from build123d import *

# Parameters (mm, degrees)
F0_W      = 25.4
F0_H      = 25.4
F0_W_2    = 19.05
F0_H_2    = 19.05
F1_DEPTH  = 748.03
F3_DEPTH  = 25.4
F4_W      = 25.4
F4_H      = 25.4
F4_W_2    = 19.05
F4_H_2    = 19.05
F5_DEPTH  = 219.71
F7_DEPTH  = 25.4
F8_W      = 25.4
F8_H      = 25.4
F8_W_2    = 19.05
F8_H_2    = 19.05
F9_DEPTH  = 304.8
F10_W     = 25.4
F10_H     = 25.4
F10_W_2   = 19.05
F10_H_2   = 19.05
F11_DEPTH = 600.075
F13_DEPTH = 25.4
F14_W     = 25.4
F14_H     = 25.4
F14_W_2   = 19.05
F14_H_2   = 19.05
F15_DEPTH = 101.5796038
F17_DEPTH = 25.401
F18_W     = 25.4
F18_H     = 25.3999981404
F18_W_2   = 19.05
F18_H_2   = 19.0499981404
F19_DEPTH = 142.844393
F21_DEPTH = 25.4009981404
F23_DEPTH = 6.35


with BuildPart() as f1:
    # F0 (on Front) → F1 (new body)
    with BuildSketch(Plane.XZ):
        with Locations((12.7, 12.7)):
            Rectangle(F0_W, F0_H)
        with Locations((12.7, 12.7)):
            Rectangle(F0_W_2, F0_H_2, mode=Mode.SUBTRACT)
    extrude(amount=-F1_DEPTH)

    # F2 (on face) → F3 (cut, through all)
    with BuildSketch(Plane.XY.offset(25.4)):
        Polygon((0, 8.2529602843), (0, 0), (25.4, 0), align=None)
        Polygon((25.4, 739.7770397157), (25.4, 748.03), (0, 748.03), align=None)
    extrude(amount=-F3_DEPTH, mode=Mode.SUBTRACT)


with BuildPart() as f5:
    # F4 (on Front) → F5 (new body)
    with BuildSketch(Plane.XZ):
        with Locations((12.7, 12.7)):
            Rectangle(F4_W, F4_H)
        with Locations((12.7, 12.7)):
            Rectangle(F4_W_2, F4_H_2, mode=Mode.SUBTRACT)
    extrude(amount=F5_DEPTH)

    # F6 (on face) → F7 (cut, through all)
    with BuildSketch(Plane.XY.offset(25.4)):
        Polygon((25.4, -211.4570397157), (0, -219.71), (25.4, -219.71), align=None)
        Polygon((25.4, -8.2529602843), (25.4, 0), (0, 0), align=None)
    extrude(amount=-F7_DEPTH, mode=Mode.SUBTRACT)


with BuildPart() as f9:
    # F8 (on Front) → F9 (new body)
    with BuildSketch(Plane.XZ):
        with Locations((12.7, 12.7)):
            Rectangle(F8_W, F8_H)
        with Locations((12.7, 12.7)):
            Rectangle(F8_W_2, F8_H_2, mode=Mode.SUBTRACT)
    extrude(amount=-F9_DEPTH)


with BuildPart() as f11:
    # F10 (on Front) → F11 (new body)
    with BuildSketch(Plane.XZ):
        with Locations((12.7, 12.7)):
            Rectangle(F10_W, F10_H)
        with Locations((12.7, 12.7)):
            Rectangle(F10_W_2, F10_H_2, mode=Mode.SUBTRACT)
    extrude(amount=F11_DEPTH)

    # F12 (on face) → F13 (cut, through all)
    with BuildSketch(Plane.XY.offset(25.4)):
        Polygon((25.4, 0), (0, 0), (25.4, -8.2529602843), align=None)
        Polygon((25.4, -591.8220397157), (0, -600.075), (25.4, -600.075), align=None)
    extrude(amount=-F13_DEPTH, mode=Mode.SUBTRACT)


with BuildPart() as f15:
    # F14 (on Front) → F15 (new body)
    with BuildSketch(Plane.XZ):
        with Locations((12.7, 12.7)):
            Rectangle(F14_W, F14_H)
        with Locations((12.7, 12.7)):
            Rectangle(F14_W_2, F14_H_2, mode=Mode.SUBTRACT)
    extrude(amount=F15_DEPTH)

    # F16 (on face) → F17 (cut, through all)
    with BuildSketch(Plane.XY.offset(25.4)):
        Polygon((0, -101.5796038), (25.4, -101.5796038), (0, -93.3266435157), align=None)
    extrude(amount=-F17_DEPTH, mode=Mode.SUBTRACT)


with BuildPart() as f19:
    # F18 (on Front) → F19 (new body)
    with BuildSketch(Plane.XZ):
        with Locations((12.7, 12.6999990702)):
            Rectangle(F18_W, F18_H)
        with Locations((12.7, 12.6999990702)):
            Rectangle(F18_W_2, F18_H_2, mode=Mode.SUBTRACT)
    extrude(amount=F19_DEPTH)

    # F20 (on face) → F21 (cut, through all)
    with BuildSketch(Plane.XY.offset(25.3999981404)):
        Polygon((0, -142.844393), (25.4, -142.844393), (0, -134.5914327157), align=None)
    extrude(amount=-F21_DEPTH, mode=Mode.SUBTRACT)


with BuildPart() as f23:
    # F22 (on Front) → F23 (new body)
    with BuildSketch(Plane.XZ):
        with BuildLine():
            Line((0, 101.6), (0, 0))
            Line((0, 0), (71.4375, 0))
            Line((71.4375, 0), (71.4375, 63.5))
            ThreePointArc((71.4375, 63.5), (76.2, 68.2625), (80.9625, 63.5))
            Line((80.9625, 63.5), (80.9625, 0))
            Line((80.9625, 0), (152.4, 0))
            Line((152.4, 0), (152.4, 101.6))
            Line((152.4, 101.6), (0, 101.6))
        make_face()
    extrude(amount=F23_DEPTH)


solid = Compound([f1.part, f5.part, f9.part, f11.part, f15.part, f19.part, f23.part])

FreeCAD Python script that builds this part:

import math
import FreeCAD as App
import Part
import Sketcher
Q = App.Units.Quantity


def add_polygon(sketch, points):
    """Adds a closed chain of lines whose ends are joined by coincident constraints."""
    first, n = sketch.GeometryCount, len(points)
    for a, b in zip(points, points[1:] + points[:1]):
        sketch.addGeometry(Part.LineSegment(App.Vector(*a, 0), App.Vector(*b, 0)), False)
    for i in range(n):
        sketch.addConstraint(Sketcher.Constraint("Coincident", first + i, 2, first + (i + 1) % n, 1))

doc = App.newDocument("Part")
body = doc.addObject("PartDesign::Body", "Body")

# Sketch on XZ plane
sketch1 = body.newObject("Sketcher::SketchObject", "Sketch")
sketch1.AttachmentSupport = (doc.getObject("XZ_Plane"), [""])
sketch1.MapMode = "FlatFace"
add_polygon(sketch1, [(0, 25.4), (0, 0), (25.4, 0), (25.4, 25.4)])  # lines 0-3
add_polygon(sketch1, [(22.225, 3.175), (3.175, 3.175), (3.175, 22.225), (22.225, 22.225)])  # lines 4-7
sketch1.addConstraint([
    Sketcher.Constraint("Vertical", 0),
    Sketcher.Constraint("Horizontal", 1),
    Sketcher.Constraint("Vertical", 2),
    Sketcher.Constraint("Horizontal", 3),
    Sketcher.Constraint("Horizontal", 4),
    Sketcher.Constraint("Vertical", 5),
    Sketcher.Constraint("Horizontal", 6),
    Sketcher.Constraint("Vertical", 7),
    Sketcher.Constraint("Coincident", 0, 2, -1, 1),
    Sketcher.Constraint("Equal", 3, 0),
    Sketcher.Constraint("Equal", 6, 5),
    Sketcher.Constraint("DistanceX", 1, 1, 1, 2, Q("1 in")),
    Sketcher.Constraint("DistanceX", 4, 2, 4, 1, Q("0.75 in")),
    Sketcher.Constraint("DistanceX", -1, 1, 4, 2, Q("0.125 in")),
    Sketcher.Constraint("DistanceY", -1, 1, 4, 2, Q("0.125 in")),
])
pad1 = body.newObject("PartDesign::Pad", "Pad")
pad1.Profile = sketch1
pad1.Length = Q("29.45 in")
pad1.Reversed = True

# Sketch on XY plane
sketch2 = body.newObject("Sketcher::SketchObject", "Sketch001")
sketch2.AttachmentSupport = (doc.getObject("XY_Plane"), [""])
sketch2.MapMode = "FlatFace"
sketch2.AttachmentOffset = App.Placement(App.Vector(0, 0, 1 * 25.4), App.Rotation())
add_polygon(sketch2, [(0, 8.25296), (0, 0), (25.4, 0)])  # lines 0-2
add_polygon(sketch2, [(25.4, 739.77704), (25.4, 748.03), (0, 748.03)])  # lines 3-5
sketch2.addConstraint([
    Sketcher.Constraint("Vertical", 0),
    Sketcher.Constraint("Horizontal", 1),
    Sketcher.Constraint("Vertical", 3),
    Sketcher.Constraint("Horizontal", 4),
    Sketcher.Constraint("Coincident", 0, 2, -1, 1),
    Sketcher.Constraint("PointOnObject", 4, 2, -2),
    Sketcher.Constraint("Parallel", 2, 5),
    Sketcher.Constraint("Vertical", 1, 2, 3, 2),
    Sketcher.Constraint("DistanceX", 1, 1, 1, 2, Q("1 in")),
    Sketcher.Constraint("Angle", 2, Q("162 deg")),
    Sketcher.Constraint("DistanceY", -1, 1, 3, 2, Q("29.45 in")),
])
pocket1 = body.newObject("PartDesign::Pocket", "Pocket")
pocket1.Profile = sketch2
pocket1.Type = "ThroughAll"
body2 = doc.addObject("PartDesign::Body", "Body001")

# Sketch on XZ plane
sketch3 = body2.newObject("Sketcher::SketchObject", "Sketch002")
sketch3.AttachmentSupport = (doc.getObject("XZ_Plane001"), [""])
sketch3.MapMode = "FlatFace"
add_polygon(sketch3, [(0, 25.4), (0, 0), (25.4, 0), (25.4, 25.4)])  # lines 0-3
add_polygon(sketch3, [(22.225, 3.175), (3.175, 3.175), (3.175, 22.225), (22.225, 22.225)])  # lines 4-7
sketch3.addConstraint([
    Sketcher.Constraint("Vertical", 0),
    Sketcher.Constraint("Horizontal", 1),
    Sketcher.Constraint("Vertical", 2),
    Sketcher.Constraint("Horizontal", 3),
    Sketcher.Constraint("Horizontal", 4),
    Sketcher.Constraint("Vertical", 5),
    Sketcher.Constraint("Horizontal", 6),
    Sketcher.Constraint("Vertical", 7),
    Sketcher.Constraint("Coincident", 0, 2, -1, 1),
    Sketcher.Constraint("Equal", 3, 0),
    Sketcher.Constraint("Equal", 6, 5),
    Sketcher.Constraint("DistanceX", 1, 1, 1, 2, Q("1 in")),
    Sketcher.Constraint("DistanceX", 4, 2, 4, 1, Q("0.75 in")),
    Sketcher.Constraint("DistanceX", -1, 1, 4, 2, Q("0.125 in")),
    Sketcher.Constraint("DistanceY", -1, 1, 4, 2, Q("0.125 in")),
])
pad2 = body2.newObject("PartDesign::Pad", "Pad001")
pad2.Profile = sketch3
pad2.Length = Q("8.65 in")

# Sketch on XY plane
sketch4 = body2.newObject("Sketcher::SketchObject", "Sketch003")
sketch4.AttachmentSupport = (doc.getObject("XY_Plane001"), [""])
sketch4.MapMode = "FlatFace"
sketch4.AttachmentOffset = App.Placement(App.Vector(0, 0, 1 * 25.4), App.Rotation())
add_polygon(sketch4, [(25.4, -211.45704), (0, -219.71), (25.4, -219.71)])  # lines 0-2
add_polygon(sketch4, [(25.4, -8.25296), (25.4, 0), (0, 0)])  # lines 3-5
sketch4.addConstraint([
    Sketcher.Constraint("Horizontal", 1),
    Sketcher.Constraint("Vertical", 2),
    Sketcher.Constraint("Vertical", 3),
    Sketcher.Constraint("Horizontal", 4),
    Sketcher.Constraint("Coincident", 4, 2, -1, 1),
    Sketcher.Constraint("PointOnObject", 0, 2, -2),
    Sketcher.Constraint("Vertical", 2, 2, 3, 2),
    Sketcher.Constraint("Equal", 2, 3),
    Sketcher.Constraint("DistanceX", 1, 1, 1, 2, Q("1 in")),
    Sketcher.Constraint("Angle", 0, Q("-162 deg")),
    Sketcher.Constraint("DistanceY", 0, 2, -1, 1, Q("8.65 in")),
])
pocket2 = body2.newObject("PartDesign::Pocket", "Pocket001")
pocket2.Profile = sketch4
pocket2.Type = "ThroughAll"
body3 = doc.addObject("PartDesign::Body", "Body002")

# Sketch on XZ plane
sketch5 = body3.newObject("Sketcher::SketchObject", "Sketch004")
sketch5.AttachmentSupport = (doc.getObject("XZ_Plane002"), [""])
sketch5.MapMode = "FlatFace"
add_polygon(sketch5, [(0, 25.4), (0, 0), (25.4, 0), (25.4, 25.4)])  # lines 0-3
add_polygon(sketch5, [(22.225, 3.175), (3.175, 3.175), (3.175, 22.225), (22.225, 22.225)])  # lines 4-7
sketch5.addConstraint([
    Sketcher.Constraint("Vertical", 0),
    Sketcher.Constraint("Horizontal", 1),
    Sketcher.Constraint("Vertical", 2),
    Sketcher.Constraint("Horizontal", 3),
    Sketcher.Constraint("Horizontal", 4),
    Sketcher.Constraint("Vertical", 5),
    Sketcher.Constraint("Horizontal", 6),
    Sketcher.Constraint("Vertical", 7),
    Sketcher.Constraint("Coincident", 0, 2, -1, 1),
    Sketcher.Constraint("Equal", 3, 0),
    Sketcher.Constraint("Equal", 6, 5),
    Sketcher.Constraint("DistanceX", 1, 1, 1, 2, Q("1 in")),
    Sketcher.Constraint("DistanceX", 4, 2, 4, 1, Q("0.75 in")),
    Sketcher.Constraint("DistanceX", -1, 1, 4, 2, Q("0.125 in")),
    Sketcher.Constraint("DistanceY", -1, 1, 4, 2, Q("0.125 in")),
])
pad3 = body3.newObject("PartDesign::Pad", "Pad002")
pad3.Profile = sketch5
pad3.Length = Q("12 in")
pad3.Reversed = True
body4 = doc.addObject("PartDesign::Body", "Body003")

# Sketch on XZ plane
sketch6 = body4.newObject("Sketcher::SketchObject", "Sketch005")
sketch6.AttachmentSupport = (doc.getObject("XZ_Plane003"), [""])
sketch6.MapMode = "FlatFace"
add_polygon(sketch6, [(0, 25.4), (0, 0), (25.4, 0), (25.4, 25.4)])  # lines 0-3
add_polygon(sketch6, [(22.225, 3.175), (3.175, 3.175), (3.175, 22.225), (22.225, 22.225)])  # lines 4-7
sketch6.addConstraint([
    Sketcher.Constraint("Vertical", 0),
    Sketcher.Constraint("Horizontal", 1),
    Sketcher.Constraint("Vertical", 2),
    Sketcher.Constraint("Horizontal", 3),
    Sketcher.Constraint("Horizontal", 4),
    Sketcher.Constraint("Vertical", 5),
    Sketcher.Constraint("Horizontal", 6),
    Sketcher.Constraint("Vertical", 7),
    Sketcher.Constraint("Coincident", 0, 2, -1, 1),
    Sketcher.Constraint("Equal", 3, 0),
    Sketcher.Constraint("Equal", 6, 5),
    Sketcher.Constraint("DistanceX", 1, 1, 1, 2, Q("1 in")),
    Sketcher.Constraint("DistanceX", 4, 2, 4, 1, Q("0.75 in")),
    Sketcher.Constraint("DistanceX", -1, 1, 4, 2, Q("0.125 in")),
    Sketcher.Constraint("DistanceY", -1, 1, 4, 2, Q("0.125 in")),
])
pad4 = body4.newObject("PartDesign::Pad", "Pad003")
pad4.Profile = sketch6
pad4.Length = Q("23.625 in")

# Sketch on XY plane
sketch7 = body4.newObject("Sketcher::SketchObject", "Sketch006")
sketch7.AttachmentSupport = (doc.getObject("XY_Plane003"), [""])
sketch7.MapMode = "FlatFace"
sketch7.AttachmentOffset = App.Placement(App.Vector(0, 0, 1 * 25.4), App.Rotation())
add_polygon(sketch7, [(25.4, 0), (0, 0), (25.4, -8.25296)])  # lines 0-2
add_polygon(sketch7, [(25.4, -591.82204), (0, -600.075), (25.4, -600.075)])  # lines 3-5
sketch7.addConstraint([
    Sketcher.Constraint("Horizontal", 0),
    Sketcher.Constraint("Vertical", 2),
    Sketcher.Constraint("Horizontal", 4),
    Sketcher.Constraint("Vertical", 5),
    Sketcher.Constraint("Coincident", 0, 2, -1, 1),
    Sketcher.Constraint("PointOnObject", 3, 2, -2),
    Sketcher.Constraint("Vertical", 2, 2, 4, 2),
    Sketcher.Constraint("Equal", 2, 5),
    Sketcher.Constraint("DistanceX", 0, 2, 0, 1, Q("1 in")),
    Sketcher.Constraint("Angle", 1, Q("-18 deg")),
    Sketcher.Constraint("DistanceY", 3, 2, -1, 1, Q("23.625 in")),
])
pocket3 = body4.newObject("PartDesign::Pocket", "Pocket002")
pocket3.Profile = sketch7
pocket3.Type = "ThroughAll"
body5 = doc.addObject("PartDesign::Body", "Body004")

# Sketch on XZ plane
sketch8 = body5.newObject("Sketcher::SketchObject", "Sketch007")
sketch8.AttachmentSupport = (doc.getObject("XZ_Plane004"), [""])
sketch8.MapMode = "FlatFace"
add_polygon(sketch8, [(0, 25.4), (0, 0), (25.4, 0), (25.4, 25.4)])  # lines 0-3
add_polygon(sketch8, [(22.225, 3.175), (3.175, 3.175), (3.175, 22.225), (22.225, 22.225)])  # lines 4-7
sketch8.addConstraint([
    Sketcher.Constraint("Vertical", 0),
    Sketcher.Constraint("Horizontal", 1),
    Sketcher.Constraint("Vertical", 2),
    Sketcher.Constraint("Horizontal", 3),
    Sketcher.Constraint("Horizontal", 4),
    Sketcher.Constraint("Vertical", 5),
    Sketcher.Constraint("Horizontal", 6),
    Sketcher.Constraint("Vertical", 7),
    Sketcher.Constraint("Coincident", 0, 2, -1, 1),
    Sketcher.Constraint("Equal", 3, 0),
    Sketcher.Constraint("Equal", 6, 5),
    Sketcher.Constraint("DistanceX", 1, 1, 1, 2, Q("1 in")),
    Sketcher.Constraint("DistanceX", 4, 2, 4, 1, Q("0.75 in")),
    Sketcher.Constraint("DistanceX", -1, 1, 4, 2, Q("0.125 in")),
    Sketcher.Constraint("DistanceY", -1, 1, 4, 2, Q("0.125 in")),
])
pad5 = body5.newObject("PartDesign::Pad", "Pad004")
pad5.Profile = sketch8
pad5.Length = 101.579604

# Sketch on XY plane
sketch9 = body5.newObject("Sketcher::SketchObject", "Sketch008")
sketch9.AttachmentSupport = (doc.getObject("XY_Plane004"), [""])
sketch9.MapMode = "FlatFace"
sketch9.AttachmentOffset = App.Placement(App.Vector(0, 0, 1 * 25.4), App.Rotation())
add_polygon(sketch9, [(0, -101.579604), (25.4, -101.579604), (0, -93.326644)])  # lines 0-2
sketch9.addConstraint([
    Sketcher.Constraint("Horizontal", 0),
    Sketcher.Constraint("Vertical", 2),
    Sketcher.Constraint("PointOnObject", 1, 2, -2),
    Sketcher.Constraint("DistanceX", 0, 1, 0, 2, Q("1 in")),
    Sketcher.Constraint("Angle", 1, Q("162 deg")),
    Sketcher.Constraint("DistanceY", 0, 2, -1, 1, 101.579604),
])
pocket4 = body5.newObject("PartDesign::Pocket", "Pocket003")
pocket4.Profile = sketch9
pocket4.Type = "ThroughAll"
body6 = doc.addObject("PartDesign::Body", "Body005")

# Sketch on XZ plane
sketch10 = body6.newObject("Sketcher::SketchObject", "Sketch009")
sketch10.AttachmentSupport = (doc.getObject("XZ_Plane005"), [""])
sketch10.MapMode = "FlatFace"
add_polygon(sketch10, [(0, 25.399998), (0, 0), (25.4, 0), (25.4, 25.399998)])  # lines 0-3
add_polygon(sketch10, [(22.225, 3.175), (3.175, 3.175), (3.175, 22.224998), (22.225, 22.224998)])  # lines 4-7
sketch10.addConstraint([
    Sketcher.Constraint("Vertical", 0),
    Sketcher.Constraint("Horizontal", 1),
    Sketcher.Constraint("Vertical", 2),
    Sketcher.Constraint("Horizontal", 3),
    Sketcher.Constraint("Horizontal", 4),
    Sketcher.Constraint("Vertical", 5),
    Sketcher.Constraint("Horizontal", 6),
    Sketcher.Constraint("Vertical", 7),
    Sketcher.Constraint("Coincident", 0, 2, -1, 1),
    Sketcher.Constraint("Equal", 3, 0),
    Sketcher.Constraint("Equal", 6, 5),
    Sketcher.Constraint("DistanceX", 1, 1, 1, 2, Q("1 in")),
    Sketcher.Constraint("DistanceX", 4, 2, 4, 1, Q("0.75 in")),
    Sketcher.Constraint("DistanceX", -1, 1, 4, 2, Q("0.125 in")),
    Sketcher.Constraint("DistanceY", -1, 1, 4, 2, Q("0.125 in")),
])
pad6 = body6.newObject("PartDesign::Pad", "Pad005")
pad6.Profile = sketch10
pad6.Length = 142.844393

# Sketch on XY plane
sketch11 = body6.newObject("Sketcher::SketchObject", "Sketch010")
sketch11.AttachmentSupport = (doc.getObject("XY_Plane005"), [""])
sketch11.MapMode = "FlatFace"
sketch11.AttachmentOffset = App.Placement(App.Vector(0, 0, 0.9999999 * 25.4), App.Rotation())
add_polygon(sketch11, [(0, -142.844393), (25.4, -142.844393), (0, -134.591433)])  # lines 0-2
sketch11.addConstraint([
    Sketcher.Constraint("Horizontal", 0),
    Sketcher.Constraint("Vertical", 2),
    Sketcher.Constraint("PointOnObject", 1, 2, -2),
    Sketcher.Constraint("DistanceX", 0, 1, 0, 2, Q("1 in")),
    Sketcher.Constraint("Angle", 1, Q("162 deg")),
    Sketcher.Constraint("DistanceY", 0, 2, -1, 1, 142.844393),
])
pocket5 = body6.newObject("PartDesign::Pocket", "Pocket004")
pocket5.Profile = sketch11
pocket5.Type = "ThroughAll"
body7 = doc.addObject("PartDesign::Body", "Body006")

# Sketch on XZ plane
sketch12 = body7.newObject("Sketcher::SketchObject", "Sketch011")
sketch12.AttachmentSupport = (doc.getObject("XZ_Plane006"), [""])
sketch12.MapMode = "FlatFace"
sketch12.addGeometry([
    Part.LineSegment(App.Vector(0, 101.6, 0), App.Vector(0, 0, 0)),  # 0
    Part.LineSegment(App.Vector(0, 0, 0), App.Vector(71.4375, 0, 0)),  # 1
    Part.LineSegment(App.Vector(71.4375, 0, 0), App.Vector(71.4375, 63.5, 0)),  # 2
    Part.ArcOfCircle(Part.Circle(App.Vector(76.2, 63.5, 0), App.Vector(0, 0, 1), 4.7625), math.radians(0), math.radians(180)),  # 3
    Part.LineSegment(App.Vector(80.9625, 63.5, 0), App.Vector(80.9625, 0, 0)),  # 4
    Part.LineSegment(App.Vector(80.9625, 0, 0), App.Vector(152.4, 0, 0)),  # 5
    Part.LineSegment(App.Vector(152.4, 0, 0), App.Vector(152.4, 101.6, 0)),  # 6
    Part.LineSegment(App.Vector(152.4, 101.6, 0), App.Vector(0, 101.6, 0)),  # 7
], False)
sketch12.addConstraint([
    Sketcher.Constraint("Coincident", 0, 2, 1, 1),
    Sketcher.Constraint("Coincident", 1, 2, 2, 1),
    Sketcher.Constraint("Tangent", 2, 2, 3, 2),
    Sketcher.Constraint("Tangent", 3, 1, 4, 1),
    Sketcher.Constraint("Coincident", 4, 2, 5, 1),
    Sketcher.Constraint("Coincident", 5, 2, 6, 1),
    Sketcher.Constraint("Coincident", 6, 2, 7, 1),
    Sketcher.Constraint("Coincident", 7, 2, 0, 1),
    Sketcher.Constraint("Vertical", 0),
    Sketcher.Constraint("Horizontal", 1),
    Sketcher.Constraint("Vertical", 2),
    Sketcher.Constraint("Vertical", 4),
    Sketcher.Constraint("Horizontal", 5),
    Sketcher.Constraint("Vertical", 6),
    Sketcher.Constraint("Horizontal", 7),
    Sketcher.Constraint("Coincident", 0, 2, -1, 1),
    Sketcher.Constraint("PointOnObject", 4, 2, -1),
    Sketcher.Constraint("Equal", 1, 5),
    Sketcher.Constraint("DistanceX", 7, 2, 7, 1, Q("6 in")),
    Sketcher.Constraint("DistanceY", 0, 2, 0, 1, Q("4 in")),
    Sketcher.Constraint("DistanceY", 2, 1, 2, 2, Q("2.5 in")),
    Sketcher.Constraint("Radius", 3, Q("0.1875 in")),
])
pad7 = body7.newObject("PartDesign::Pad", "Pad006")
pad7.Profile = sketch12
pad7.Length = Q("0.25 in")

doc.recompute()
